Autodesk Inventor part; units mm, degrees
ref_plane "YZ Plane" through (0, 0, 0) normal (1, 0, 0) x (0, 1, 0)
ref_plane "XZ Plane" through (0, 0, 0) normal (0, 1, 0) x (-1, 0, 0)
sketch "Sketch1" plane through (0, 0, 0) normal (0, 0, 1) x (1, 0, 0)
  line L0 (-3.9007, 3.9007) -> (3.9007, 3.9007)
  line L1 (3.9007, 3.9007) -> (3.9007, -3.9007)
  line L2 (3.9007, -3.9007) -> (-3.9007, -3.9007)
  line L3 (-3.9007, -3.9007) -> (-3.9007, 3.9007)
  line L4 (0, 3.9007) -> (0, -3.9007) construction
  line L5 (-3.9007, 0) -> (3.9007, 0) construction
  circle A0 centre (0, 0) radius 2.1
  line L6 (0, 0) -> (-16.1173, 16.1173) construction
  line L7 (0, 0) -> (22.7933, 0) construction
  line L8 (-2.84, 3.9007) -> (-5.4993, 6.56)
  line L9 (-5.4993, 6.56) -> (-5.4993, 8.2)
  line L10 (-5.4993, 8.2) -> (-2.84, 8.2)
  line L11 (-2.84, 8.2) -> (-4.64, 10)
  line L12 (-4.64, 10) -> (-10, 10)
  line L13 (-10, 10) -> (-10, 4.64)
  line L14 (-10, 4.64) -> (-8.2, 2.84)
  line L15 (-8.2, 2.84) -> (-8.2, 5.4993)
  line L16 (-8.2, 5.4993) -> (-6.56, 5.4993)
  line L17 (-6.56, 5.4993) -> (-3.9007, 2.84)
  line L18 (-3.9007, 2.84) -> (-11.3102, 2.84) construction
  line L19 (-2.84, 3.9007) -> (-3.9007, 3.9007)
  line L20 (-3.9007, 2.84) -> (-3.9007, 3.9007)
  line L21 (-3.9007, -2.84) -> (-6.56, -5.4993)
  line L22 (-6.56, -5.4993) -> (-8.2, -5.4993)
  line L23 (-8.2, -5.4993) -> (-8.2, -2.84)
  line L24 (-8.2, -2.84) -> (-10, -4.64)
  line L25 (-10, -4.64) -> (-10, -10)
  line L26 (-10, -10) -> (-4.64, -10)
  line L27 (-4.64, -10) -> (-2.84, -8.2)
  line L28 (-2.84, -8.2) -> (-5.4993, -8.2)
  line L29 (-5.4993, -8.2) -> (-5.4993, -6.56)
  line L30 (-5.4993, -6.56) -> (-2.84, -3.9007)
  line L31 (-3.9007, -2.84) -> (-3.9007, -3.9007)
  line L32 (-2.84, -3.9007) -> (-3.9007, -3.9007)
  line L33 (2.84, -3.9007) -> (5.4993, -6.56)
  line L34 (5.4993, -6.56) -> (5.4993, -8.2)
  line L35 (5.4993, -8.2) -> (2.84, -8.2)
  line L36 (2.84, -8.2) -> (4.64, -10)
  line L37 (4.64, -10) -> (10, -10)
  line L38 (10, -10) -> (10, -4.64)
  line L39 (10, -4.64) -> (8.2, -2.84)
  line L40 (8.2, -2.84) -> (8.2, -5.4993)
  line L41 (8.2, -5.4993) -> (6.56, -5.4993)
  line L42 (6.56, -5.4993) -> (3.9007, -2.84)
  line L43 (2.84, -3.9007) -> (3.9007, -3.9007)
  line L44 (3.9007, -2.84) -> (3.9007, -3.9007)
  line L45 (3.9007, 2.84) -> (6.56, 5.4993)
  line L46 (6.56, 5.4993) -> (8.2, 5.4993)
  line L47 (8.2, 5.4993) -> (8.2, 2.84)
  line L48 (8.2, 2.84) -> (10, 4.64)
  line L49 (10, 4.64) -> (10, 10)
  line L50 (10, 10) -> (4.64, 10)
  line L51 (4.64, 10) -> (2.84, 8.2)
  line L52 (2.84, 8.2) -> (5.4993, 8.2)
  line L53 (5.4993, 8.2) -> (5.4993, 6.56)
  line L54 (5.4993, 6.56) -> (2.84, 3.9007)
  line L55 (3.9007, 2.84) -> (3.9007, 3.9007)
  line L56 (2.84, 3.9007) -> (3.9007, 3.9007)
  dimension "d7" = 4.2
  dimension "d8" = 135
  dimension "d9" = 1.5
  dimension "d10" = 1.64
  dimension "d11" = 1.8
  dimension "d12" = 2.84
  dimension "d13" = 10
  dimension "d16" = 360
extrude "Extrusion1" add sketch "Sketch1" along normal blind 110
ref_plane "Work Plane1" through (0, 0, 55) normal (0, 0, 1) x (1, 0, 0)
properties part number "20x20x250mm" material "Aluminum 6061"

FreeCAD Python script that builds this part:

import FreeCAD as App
import Part
import Sketcher

V = App.Vector
Q = App.Units.Quantity

doc = App.newDocument("Part")
params = doc.addObject("Spreadsheet::Sheet", "Params")
for row, (alias, value) in enumerate([
    ("sketch1_diameter", "4.2 mm"),
    ("sketch1_width", "1.64 mm"),
    ("pad1_length", "110 mm"),
], start=1):
    params.set(f"A{row}", alias)
    params.set(f"B{row}", "=" + value)
    params.setAlias(f"B{row}", alias)

body = doc.addObject("PartDesign::Body", "Body")

sketch1 = body.newObject("Sketcher::SketchObject", "Sketch")
sketch1.AttachmentSupport = (doc.getObject("XY_Plane"), [""])
sketch1.MapMode = "FlatFace"
sketch1.addGeometry(Part.LineSegment(V(-6.6, 5.5, 0), V(-3.9, 2.8, 0)), False)
sketch1.addGeometry(Part.LineSegment(V(-3.9, 2.8, 0), V(-3.9, -2.8, 0)), False)
sketch1.addGeometry(Part.LineSegment(V(-3.9, -2.8, 0), V(-6.6, -5.5, 0)), False)
sketch1.addGeometry(Part.LineSegment(V(-6.6, -5.5, 0), V(-8.2, -5.5, 0)), False)
sketch1.addGeometry(Part.LineSegment(V(-8.2, -5.5, 0), V(-8.2, -2.8, 0)), False)
sketch1.addGeometry(Part.LineSegment(V(-8.2, -2.8, 0), V(-10, -4.6, 0)), False)
sketch1.addGeometry(Part.LineSegment(V(-10, -4.6, 0), V(-10, -10, 0)), False)
sketch1.addGeometry(Part.LineSegment(V(-10, -10, 0), V(-4.6, -10, 0)), False)
sketch1.addGeometry(Part.LineSegment(V(-4.6, -10, 0), V(-2.8, -8.2, 0)), False)
sketch1.addGeometry(Part.LineSegment(V(-2.8, -8.2, 0), V(-5.5, -8.2, 0)), False)
sketch1.addGeometry(Part.LineSegment(V(-5.5, -8.2, 0), V(-5.5, -6.6, 0)), False)
sketch1.addGeometry(Part.LineSegment(V(-5.5, -6.6, 0), V(-2.8, -3.9, 0)), False)
sketch1.addGeometry(Part.LineSegment(V(-2.8, -3.9, 0), V(2.8, -3.9, 0)), False)
sketch1.addGeometry(Part.LineSegment(V(2.8, -3.9, 0), V(5.5, -6.6, 0)), False)
sketch1.addGeometry(Part.LineSegment(V(5.5, -6.6, 0), V(5.5, -8.2, 0)), False)
sketch1.addGeometry(Part.LineSegment(V(5.5, -8.2, 0), V(2.8, -8.2, 0)), False)
sketch1.addGeometry(Part.LineSegment(V(2.8, -8.2, 0), V(4.6, -10, 0)), False)
sketch1.addGeometry(Part.LineSegment(V(4.6, -10, 0), V(10, -10, 0)), False)
sketch1.addGeometry(Part.LineSegment(V(10, -10, 0), V(10, -4.6, 0)), False)
sketch1.addGeometry(Part.LineSegment(V(10, -4.6, 0), V(8.2, -2.8, 0)), False)
sketch1.addGeometry(Part.LineSegment(V(8.2, -2.8, 0), V(8.2, -5.5, 0)), False)
sketch1.addGeometry(Part.LineSegment(V(8.2, -5.5, 0), V(6.6, -5.5, 0)), False)
sketch1.addGeometry(Part.LineSegment(V(6.6, -5.5, 0), V(3.9, -2.8, 0)), False)
sketch1.addGeometry(Part.LineSegment(V(3.9, -2.8, 0), V(3.9, 2.8, 0)), False)
sketch1.addGeometry(Part.LineSegment(V(3.9, 2.8, 0), V(6.6, 5.5, 0)), False)
sketch1.addGeometry(Part.LineSegment(V(6.6, 5.5, 0), V(8.2, 5.5, 0)), False)
sketch1.addGeometry(Part.LineSegment(V(8.2, 5.5, 0), V(8.2, 2.8, 0)), False)
sketch1.addGeometry(Part.LineSegment(V(8.2, 2.8, 0), V(10, 4.6, 0)), False)
sketch1.addGeometry(Part.LineSegment(V(10, 4.6, 0), V(10, 10, 0)), False)
sketch1.addGeometry(Part.LineSegment(V(10, 10, 0), V(4.6, 10, 0)), False)
sketch1.addGeometry(Part.LineSegment(V(4.6, 10, 0), V(2.8, 8.2, 0)), False)
sketch1.addGeometry(Part.LineSegment(V(2.8, 8.2, 0), V(5.5, 8.2, 0)), False)
sketch1.addGeometry(Part.LineSegment(V(5.5, 8.2, 0), V(5.5, 6.6, 0)), False)
sketch1.addGeometry(Part.LineSegment(V(5.5, 6.6, 0), V(2.8, 3.9, 0)), False)
sketch1.addGeometry(Part.LineSegment(V(2.8, 3.9, 0), V(-2.8, 3.9, 0)), False)
sketch1.addGeometry(Part.LineSegment(V(-2.8, 3.9, 0), V(-5.5, 6.6, 0)), False)
sketch1.addGeometry(Part.LineSegment(V(-5.5, 6.6, 0), V(-5.5, 8.2, 0)), False)
sketch1.addGeometry(Part.LineSegment(V(-5.5, 8.2, 0), V(-2.8, 8.2, 0)), False)
sketch1.addGeometry(Part.LineSegment(V(-2.8, 8.2, 0), V(-4.6, 10, 0)), False)
sketch1.addGeometry(Part.LineSegment(V(-4.6, 10, 0), V(-10, 10, 0)), False)
sketch1.addGeometry(Part.LineSegment(V(-10, 10, 0), V(-10, 4.6, 0)), False)
sketch1.addGeometry(Part.LineSegment(V(-10, 4.6, 0), V(-8.2, 2.8, 0)), False)
sketch1.addGeometry(Part.LineSegment(V(-8.2, 2.8, 0), V(-8.2, 5.5, 0)), False)
sketch1.addGeometry(Part.LineSegment(V(-8.2, 5.5, 0), V(-6.6, 5.5, 0)), False)
sketch1.addGeometry(Part.Circle(V(0, 0, 0), V(0, 0, 1), 2.1), False)
sketch1.addConstraint(Sketcher.Constraint("Coincident", 0, 2, 1, 1))
sketch1.addConstraint(Sketcher.Constraint("Coincident", 1, 2, 2, 1))
sketch1.addConstraint(Sketcher.Constraint("Coincident", 2, 2, 3, 1))
sketch1.addConstraint(Sketcher.Constraint("Coincident", 3, 2, 4, 1))
sketch1.addConstraint(Sketcher.Constraint("Coincident", 4, 2, 5, 1))
sketch1.addConstraint(Sketcher.Constraint("Coincident", 5, 2, 6, 1))
sketch1.addConstraint(Sketcher.Constraint("Coincident", 6, 2, 7, 1))
sketch1.addConstraint(Sketcher.Constraint("Coincident", 7, 2, 8, 1))
sketch1.addConstraint(Sketcher.Constraint("Coincident", 8, 2, 9, 1))
sketch1.addConstraint(Sketcher.Constraint("Coincident", 9, 2, 10, 1))
sketch1.addConstraint(Sketcher.Constraint("Coincident", 10, 2, 11, 1))
sketch1.addConstraint(Sketcher.Constraint("Coincident", 11, 2, 12, 1))
sketch1.addConstraint(Sketcher.Constraint("Coincident", 12, 2, 13, 1))
sketch1.addConstraint(Sketcher.Constraint("Coincident", 13, 2, 14, 1))
sketch1.addConstraint(Sketcher.Constraint("Coincident", 14, 2, 15, 1))
sketch1.addConstraint(Sketcher.Constraint("Coincident", 15, 2, 16, 1))
sketch1.addConstraint(Sketcher.Constraint("Coincident", 16, 2, 17, 1))
sketch1.addConstraint(Sketcher.Constraint("Coincident", 17, 2, 18, 1))
sketch1.addConstraint(Sketcher.Constraint("Coincident", 18, 2, 19, 1))
sketch1.addConstraint(Sketcher.Constraint("Coincident", 19, 2, 20, 1))
sketch1.addConstraint(Sketcher.Constraint("Coincident", 20, 2, 21, 1))
sketch1.addConstraint(Sketcher.Constraint("Coincident", 21, 2, 22, 1))
sketch1.addConstraint(Sketcher.Constraint("Coincident", 22, 2, 23, 1))
sketch1.addConstraint(Sketcher.Constraint("Coincident", 23, 2, 24, 1))
sketch1.addConstraint(Sketcher.Constraint("Coincident", 24, 2, 25, 1))
sketch1.addConstraint(Sketcher.Constraint("Coincident", 25, 2, 26, 1))
sketch1.addConstraint(Sketcher.Constraint("Coincident", 26, 2, 27, 1))
sketch1.addConstraint(Sketcher.Constraint("Coincident", 27, 2, 28, 1))
sketch1.addConstraint(Sketcher.Constraint("Coincident", 28, 2, 29, 1))
sketch1.addConstraint(Sketcher.Constraint("Coincident", 29, 2, 30, 1))
sketch1.addConstraint(Sketcher.Constraint("Coincident", 30, 2, 31, 1))
sketch1.addConstraint(Sketcher.Constraint("Coincident", 31, 2, 32, 1))
sketch1.addConstraint(Sketcher.Constraint("Coincident", 32, 2, 33, 1))
sketch1.addConstraint(Sketcher.Constraint("Coincident", 33, 2, 34, 1))
sketch1.addConstraint(Sketcher.Constraint("Coincident", 34, 2, 35, 1))
sketch1.addConstraint(Sketcher.Constraint("Coincident", 35, 2, 36, 1))
sketch1.addConstraint(Sketcher.Constraint("Coincident", 36, 2, 37, 1))
sketch1.addConstraint(Sketcher.Constraint("Coincident", 37, 2, 38, 1))
sketch1.addConstraint(Sketcher.Constraint("Coincident", 38, 2, 39, 1))
sketch1.addConstraint(Sketcher.Constraint("Coincident", 39, 2, 40, 1))
sketch1.addConstraint(Sketcher.Constraint("Coincident", 40, 2, 41, 1))
sketch1.addConstraint(Sketcher.Constraint("Coincident", 41, 2, 42, 1))
sketch1.addConstraint(Sketcher.Constraint("Coincident", 42, 2, 43, 1))
sketch1.addConstraint(Sketcher.Constraint("Coincident", 43, 2, 0, 1))
sketch1.addConstraint(Sketcher.Constraint("Vertical", 1))
sketch1.addConstraint(Sketcher.Constraint("Horizontal", 3))
sketch1.addConstraint(Sketcher.Constraint("Vertical", 4))
sketch1.addConstraint(Sketcher.Constraint("Vertical", 6))
sketch1.addConstraint(Sketcher.Constraint("Horizontal", 7))
sketch1.addConstraint(Sketcher.Constraint("Horizontal", 9))
sketch1.addConstraint(Sketcher.Constraint("Vertical", 10))
sketch1.addConstraint(Sketcher.Constraint("Horizontal", 12))
sketch1.addConstraint(Sketcher.Constraint("Vertical", 14))
sketch1.addConstraint(Sketcher.Constraint("Horizontal", 15))
sketch1.addConstraint(Sketcher.Constraint("Horizontal", 17))
sketch1.addConstraint(Sketcher.Constraint("Vertical", 18))
sketch1.addConstraint(Sketcher.Constraint("Vertical", 20))
sketch1.addConstraint(Sketcher.Constraint("Horizontal", 21))
sketch1.addConstraint(Sketcher.Constraint("Vertical", 23))
sketch1.addConstraint(Sketcher.Constraint("Horizontal", 25))
sketch1.addConstraint(Sketcher.Constraint("Vertical", 26))
sketch1.addConstraint(Sketcher.Constraint("Vertical", 28))
sketch1.addConstraint(Sketcher.Constraint("Horizontal", 29))
sketch1.addConstraint(Sketcher.Constraint("Horizontal", 31))
sketch1.addConstraint(Sketcher.Constraint("Vertical", 32))
sketch1.addConstraint(Sketcher.Constraint("Horizontal", 34))
sketch1.addConstraint(Sketcher.Constraint("Vertical", 36))
sketch1.addConstraint(Sketcher.Constraint("Horizontal", 37))
sketch1.addConstraint(Sketcher.Constraint("Horizontal", 39))
sketch1.addConstraint(Sketcher.Constraint("Vertical", 40))
sketch1.addConstraint(Sketcher.Constraint("Vertical", 42))
sketch1.addConstraint(Sketcher.Constraint("Horizontal", 43))
sketch1.addConstraint(Sketcher.Constraint("Coincident", 44, 3, -1, 1))
sketch1.addConstraint(Sketcher.Constraint("Symmetric", 0, 2, 22, 2, -1, 1))
sketch1.addConstraint(Sketcher.Constraint("Symmetric", 2, 2, 24, 2, -1, 1))
sketch1.addConstraint(Sketcher.Constraint("Symmetric", 4, 2, 26, 2, -1, 1))
sketch1.addConstraint(Sketcher.Constraint("Symmetric", 5, 2, 27, 2, -1, 1))
sketch1.addConstraint(Sketcher.Constraint("Symmetric", 7, 2, 29, 2, -1, 1))
sketch1.addConstraint(Sketcher.Constraint("Symmetric", 8, 2, 30, 2, -1, 1))
sketch1.addConstraint(Sketcher.Constraint("Symmetric", 10, 2, 32, 2, -1, 1))
sketch1.addConstraint(Sketcher.Constraint("Symmetric", 11, 2, 33, 2, -1, 1))
sketch1.addConstraint(Sketcher.Constraint("Symmetric", 13, 2, 35, 2, -1, 1))
sketch1.addConstraint(Sketcher.Constraint("Symmetric", 15, 2, 37, 2, -1, 1))
sketch1.addConstraint(Sketcher.Constraint("Symmetric", 16, 2, 38, 2, -1, 1))
sketch1.addConstraint(Sketcher.Constraint("Symmetric", 18, 2, 40, 2, -1, 1))
sketch1.addConstraint(Sketcher.Constraint("Symmetric", 19, 2, 41, 2, -1, 1))
sketch1.addConstraint(Sketcher.Constraint("Symmetric", 21, 2, 43, 2, -1, 1))
sketch1.addConstraint(Sketcher.Constraint("Symmetric", 10, 2, 13, 2, -2))
sketch1.addConstraint(Sketcher.Constraint("Symmetric", 8, 2, 15, 2, -2))
sketch1.addConstraint(Sketcher.Constraint("Symmetric", 7, 2, 16, 2, -2))
sketch1.addConstraint(Sketcher.Constraint("Symmetric", 5, 2, 18, 2, -2))
sketch1.addConstraint(Sketcher.Constraint("Symmetric", 4, 2, 19, 2, -2))
sketch1.addConstraint(Sketcher.Constraint("Symmetric", 2, 2, 21, 2, -2))
sketch1.addConstraint(Sketcher.Constraint("Perpendicular", 0, 2))
sketch1.addConstraint(Sketcher.Constraint("Parallel", 2, 5))
sketch1.addConstraint(Sketcher.Constraint("Parallel", 5, 8))
sketch1.addConstraint(Sketcher.Constraint("Parallel", 8, 11))
sketch1.addConstraint(Sketcher.Constraint("Perpendicular", 11, 13))
sketch1.addConstraint(Sketcher.Constraint("Parallel", 13, 16))
sketch1.addConstraint(Sketcher.Constraint("Perpendicular", 22, 24))
sketch1.addConstraint(Sketcher.Constraint("Perpendicular", 33, 35))
sketch1.addConstraint(Sketcher.Constraint("Horizontal", 1, 2, 4, 2))
sketch1.addConstraint(Sketcher.Constraint("Vertical", 8, 2, 11, 2))
sketch1.addConstraint(Sketcher.Constraint("Equal", 34, 1))
sketch1.addConstraint(Sketcher.Constraint("Equal", 37, 4))
sketch1.addConstraint(Sketcher.Constraint("Equal", 39, 6))
sketch1.addConstraint(Sketcher.Constraint("Equal", 43, 10))
sketch1.addConstraint(Sketcher.Constraint("Equal", 5, 8))
sketch1.addConstraint(Sketcher.Constraint("Diameter", 44, Q("4.2 mm")))
sketch1.addConstraint(Sketcher.Constraint("DistanceX", 5, 2, -1, 1, Q("10 mm")))
sketch1.addConstraint(Sketcher.Constraint("DistanceX", 3, 2, 3, 1, Q("1.64 mm")))
sketch1.addConstraint(Sketcher.Constraint("DistanceX", 5, 2, 3, 2, Q("1.8 mm")))
sketch1.addConstraint(Sketcher.Constraint("DistanceY", -1, 1, 0, 2, Q("2.84 mm")))
sketch1.addConstraint(Sketcher.Constraint("DistanceX", 9, 2, 9, 1, Q("2.6593 mm")))
sketch1.setExpression("Constraints[108]", "Params.sketch1_diameter")
sketch1.setExpression("Constraints[110]", "Params.sketch1_width")
pad1 = body.newObject("PartDesign::Pad", "Pad")
pad1.Profile = sketch1
pad1.setExpression("Length", "Params.pad1_length")

doc.recompute()
